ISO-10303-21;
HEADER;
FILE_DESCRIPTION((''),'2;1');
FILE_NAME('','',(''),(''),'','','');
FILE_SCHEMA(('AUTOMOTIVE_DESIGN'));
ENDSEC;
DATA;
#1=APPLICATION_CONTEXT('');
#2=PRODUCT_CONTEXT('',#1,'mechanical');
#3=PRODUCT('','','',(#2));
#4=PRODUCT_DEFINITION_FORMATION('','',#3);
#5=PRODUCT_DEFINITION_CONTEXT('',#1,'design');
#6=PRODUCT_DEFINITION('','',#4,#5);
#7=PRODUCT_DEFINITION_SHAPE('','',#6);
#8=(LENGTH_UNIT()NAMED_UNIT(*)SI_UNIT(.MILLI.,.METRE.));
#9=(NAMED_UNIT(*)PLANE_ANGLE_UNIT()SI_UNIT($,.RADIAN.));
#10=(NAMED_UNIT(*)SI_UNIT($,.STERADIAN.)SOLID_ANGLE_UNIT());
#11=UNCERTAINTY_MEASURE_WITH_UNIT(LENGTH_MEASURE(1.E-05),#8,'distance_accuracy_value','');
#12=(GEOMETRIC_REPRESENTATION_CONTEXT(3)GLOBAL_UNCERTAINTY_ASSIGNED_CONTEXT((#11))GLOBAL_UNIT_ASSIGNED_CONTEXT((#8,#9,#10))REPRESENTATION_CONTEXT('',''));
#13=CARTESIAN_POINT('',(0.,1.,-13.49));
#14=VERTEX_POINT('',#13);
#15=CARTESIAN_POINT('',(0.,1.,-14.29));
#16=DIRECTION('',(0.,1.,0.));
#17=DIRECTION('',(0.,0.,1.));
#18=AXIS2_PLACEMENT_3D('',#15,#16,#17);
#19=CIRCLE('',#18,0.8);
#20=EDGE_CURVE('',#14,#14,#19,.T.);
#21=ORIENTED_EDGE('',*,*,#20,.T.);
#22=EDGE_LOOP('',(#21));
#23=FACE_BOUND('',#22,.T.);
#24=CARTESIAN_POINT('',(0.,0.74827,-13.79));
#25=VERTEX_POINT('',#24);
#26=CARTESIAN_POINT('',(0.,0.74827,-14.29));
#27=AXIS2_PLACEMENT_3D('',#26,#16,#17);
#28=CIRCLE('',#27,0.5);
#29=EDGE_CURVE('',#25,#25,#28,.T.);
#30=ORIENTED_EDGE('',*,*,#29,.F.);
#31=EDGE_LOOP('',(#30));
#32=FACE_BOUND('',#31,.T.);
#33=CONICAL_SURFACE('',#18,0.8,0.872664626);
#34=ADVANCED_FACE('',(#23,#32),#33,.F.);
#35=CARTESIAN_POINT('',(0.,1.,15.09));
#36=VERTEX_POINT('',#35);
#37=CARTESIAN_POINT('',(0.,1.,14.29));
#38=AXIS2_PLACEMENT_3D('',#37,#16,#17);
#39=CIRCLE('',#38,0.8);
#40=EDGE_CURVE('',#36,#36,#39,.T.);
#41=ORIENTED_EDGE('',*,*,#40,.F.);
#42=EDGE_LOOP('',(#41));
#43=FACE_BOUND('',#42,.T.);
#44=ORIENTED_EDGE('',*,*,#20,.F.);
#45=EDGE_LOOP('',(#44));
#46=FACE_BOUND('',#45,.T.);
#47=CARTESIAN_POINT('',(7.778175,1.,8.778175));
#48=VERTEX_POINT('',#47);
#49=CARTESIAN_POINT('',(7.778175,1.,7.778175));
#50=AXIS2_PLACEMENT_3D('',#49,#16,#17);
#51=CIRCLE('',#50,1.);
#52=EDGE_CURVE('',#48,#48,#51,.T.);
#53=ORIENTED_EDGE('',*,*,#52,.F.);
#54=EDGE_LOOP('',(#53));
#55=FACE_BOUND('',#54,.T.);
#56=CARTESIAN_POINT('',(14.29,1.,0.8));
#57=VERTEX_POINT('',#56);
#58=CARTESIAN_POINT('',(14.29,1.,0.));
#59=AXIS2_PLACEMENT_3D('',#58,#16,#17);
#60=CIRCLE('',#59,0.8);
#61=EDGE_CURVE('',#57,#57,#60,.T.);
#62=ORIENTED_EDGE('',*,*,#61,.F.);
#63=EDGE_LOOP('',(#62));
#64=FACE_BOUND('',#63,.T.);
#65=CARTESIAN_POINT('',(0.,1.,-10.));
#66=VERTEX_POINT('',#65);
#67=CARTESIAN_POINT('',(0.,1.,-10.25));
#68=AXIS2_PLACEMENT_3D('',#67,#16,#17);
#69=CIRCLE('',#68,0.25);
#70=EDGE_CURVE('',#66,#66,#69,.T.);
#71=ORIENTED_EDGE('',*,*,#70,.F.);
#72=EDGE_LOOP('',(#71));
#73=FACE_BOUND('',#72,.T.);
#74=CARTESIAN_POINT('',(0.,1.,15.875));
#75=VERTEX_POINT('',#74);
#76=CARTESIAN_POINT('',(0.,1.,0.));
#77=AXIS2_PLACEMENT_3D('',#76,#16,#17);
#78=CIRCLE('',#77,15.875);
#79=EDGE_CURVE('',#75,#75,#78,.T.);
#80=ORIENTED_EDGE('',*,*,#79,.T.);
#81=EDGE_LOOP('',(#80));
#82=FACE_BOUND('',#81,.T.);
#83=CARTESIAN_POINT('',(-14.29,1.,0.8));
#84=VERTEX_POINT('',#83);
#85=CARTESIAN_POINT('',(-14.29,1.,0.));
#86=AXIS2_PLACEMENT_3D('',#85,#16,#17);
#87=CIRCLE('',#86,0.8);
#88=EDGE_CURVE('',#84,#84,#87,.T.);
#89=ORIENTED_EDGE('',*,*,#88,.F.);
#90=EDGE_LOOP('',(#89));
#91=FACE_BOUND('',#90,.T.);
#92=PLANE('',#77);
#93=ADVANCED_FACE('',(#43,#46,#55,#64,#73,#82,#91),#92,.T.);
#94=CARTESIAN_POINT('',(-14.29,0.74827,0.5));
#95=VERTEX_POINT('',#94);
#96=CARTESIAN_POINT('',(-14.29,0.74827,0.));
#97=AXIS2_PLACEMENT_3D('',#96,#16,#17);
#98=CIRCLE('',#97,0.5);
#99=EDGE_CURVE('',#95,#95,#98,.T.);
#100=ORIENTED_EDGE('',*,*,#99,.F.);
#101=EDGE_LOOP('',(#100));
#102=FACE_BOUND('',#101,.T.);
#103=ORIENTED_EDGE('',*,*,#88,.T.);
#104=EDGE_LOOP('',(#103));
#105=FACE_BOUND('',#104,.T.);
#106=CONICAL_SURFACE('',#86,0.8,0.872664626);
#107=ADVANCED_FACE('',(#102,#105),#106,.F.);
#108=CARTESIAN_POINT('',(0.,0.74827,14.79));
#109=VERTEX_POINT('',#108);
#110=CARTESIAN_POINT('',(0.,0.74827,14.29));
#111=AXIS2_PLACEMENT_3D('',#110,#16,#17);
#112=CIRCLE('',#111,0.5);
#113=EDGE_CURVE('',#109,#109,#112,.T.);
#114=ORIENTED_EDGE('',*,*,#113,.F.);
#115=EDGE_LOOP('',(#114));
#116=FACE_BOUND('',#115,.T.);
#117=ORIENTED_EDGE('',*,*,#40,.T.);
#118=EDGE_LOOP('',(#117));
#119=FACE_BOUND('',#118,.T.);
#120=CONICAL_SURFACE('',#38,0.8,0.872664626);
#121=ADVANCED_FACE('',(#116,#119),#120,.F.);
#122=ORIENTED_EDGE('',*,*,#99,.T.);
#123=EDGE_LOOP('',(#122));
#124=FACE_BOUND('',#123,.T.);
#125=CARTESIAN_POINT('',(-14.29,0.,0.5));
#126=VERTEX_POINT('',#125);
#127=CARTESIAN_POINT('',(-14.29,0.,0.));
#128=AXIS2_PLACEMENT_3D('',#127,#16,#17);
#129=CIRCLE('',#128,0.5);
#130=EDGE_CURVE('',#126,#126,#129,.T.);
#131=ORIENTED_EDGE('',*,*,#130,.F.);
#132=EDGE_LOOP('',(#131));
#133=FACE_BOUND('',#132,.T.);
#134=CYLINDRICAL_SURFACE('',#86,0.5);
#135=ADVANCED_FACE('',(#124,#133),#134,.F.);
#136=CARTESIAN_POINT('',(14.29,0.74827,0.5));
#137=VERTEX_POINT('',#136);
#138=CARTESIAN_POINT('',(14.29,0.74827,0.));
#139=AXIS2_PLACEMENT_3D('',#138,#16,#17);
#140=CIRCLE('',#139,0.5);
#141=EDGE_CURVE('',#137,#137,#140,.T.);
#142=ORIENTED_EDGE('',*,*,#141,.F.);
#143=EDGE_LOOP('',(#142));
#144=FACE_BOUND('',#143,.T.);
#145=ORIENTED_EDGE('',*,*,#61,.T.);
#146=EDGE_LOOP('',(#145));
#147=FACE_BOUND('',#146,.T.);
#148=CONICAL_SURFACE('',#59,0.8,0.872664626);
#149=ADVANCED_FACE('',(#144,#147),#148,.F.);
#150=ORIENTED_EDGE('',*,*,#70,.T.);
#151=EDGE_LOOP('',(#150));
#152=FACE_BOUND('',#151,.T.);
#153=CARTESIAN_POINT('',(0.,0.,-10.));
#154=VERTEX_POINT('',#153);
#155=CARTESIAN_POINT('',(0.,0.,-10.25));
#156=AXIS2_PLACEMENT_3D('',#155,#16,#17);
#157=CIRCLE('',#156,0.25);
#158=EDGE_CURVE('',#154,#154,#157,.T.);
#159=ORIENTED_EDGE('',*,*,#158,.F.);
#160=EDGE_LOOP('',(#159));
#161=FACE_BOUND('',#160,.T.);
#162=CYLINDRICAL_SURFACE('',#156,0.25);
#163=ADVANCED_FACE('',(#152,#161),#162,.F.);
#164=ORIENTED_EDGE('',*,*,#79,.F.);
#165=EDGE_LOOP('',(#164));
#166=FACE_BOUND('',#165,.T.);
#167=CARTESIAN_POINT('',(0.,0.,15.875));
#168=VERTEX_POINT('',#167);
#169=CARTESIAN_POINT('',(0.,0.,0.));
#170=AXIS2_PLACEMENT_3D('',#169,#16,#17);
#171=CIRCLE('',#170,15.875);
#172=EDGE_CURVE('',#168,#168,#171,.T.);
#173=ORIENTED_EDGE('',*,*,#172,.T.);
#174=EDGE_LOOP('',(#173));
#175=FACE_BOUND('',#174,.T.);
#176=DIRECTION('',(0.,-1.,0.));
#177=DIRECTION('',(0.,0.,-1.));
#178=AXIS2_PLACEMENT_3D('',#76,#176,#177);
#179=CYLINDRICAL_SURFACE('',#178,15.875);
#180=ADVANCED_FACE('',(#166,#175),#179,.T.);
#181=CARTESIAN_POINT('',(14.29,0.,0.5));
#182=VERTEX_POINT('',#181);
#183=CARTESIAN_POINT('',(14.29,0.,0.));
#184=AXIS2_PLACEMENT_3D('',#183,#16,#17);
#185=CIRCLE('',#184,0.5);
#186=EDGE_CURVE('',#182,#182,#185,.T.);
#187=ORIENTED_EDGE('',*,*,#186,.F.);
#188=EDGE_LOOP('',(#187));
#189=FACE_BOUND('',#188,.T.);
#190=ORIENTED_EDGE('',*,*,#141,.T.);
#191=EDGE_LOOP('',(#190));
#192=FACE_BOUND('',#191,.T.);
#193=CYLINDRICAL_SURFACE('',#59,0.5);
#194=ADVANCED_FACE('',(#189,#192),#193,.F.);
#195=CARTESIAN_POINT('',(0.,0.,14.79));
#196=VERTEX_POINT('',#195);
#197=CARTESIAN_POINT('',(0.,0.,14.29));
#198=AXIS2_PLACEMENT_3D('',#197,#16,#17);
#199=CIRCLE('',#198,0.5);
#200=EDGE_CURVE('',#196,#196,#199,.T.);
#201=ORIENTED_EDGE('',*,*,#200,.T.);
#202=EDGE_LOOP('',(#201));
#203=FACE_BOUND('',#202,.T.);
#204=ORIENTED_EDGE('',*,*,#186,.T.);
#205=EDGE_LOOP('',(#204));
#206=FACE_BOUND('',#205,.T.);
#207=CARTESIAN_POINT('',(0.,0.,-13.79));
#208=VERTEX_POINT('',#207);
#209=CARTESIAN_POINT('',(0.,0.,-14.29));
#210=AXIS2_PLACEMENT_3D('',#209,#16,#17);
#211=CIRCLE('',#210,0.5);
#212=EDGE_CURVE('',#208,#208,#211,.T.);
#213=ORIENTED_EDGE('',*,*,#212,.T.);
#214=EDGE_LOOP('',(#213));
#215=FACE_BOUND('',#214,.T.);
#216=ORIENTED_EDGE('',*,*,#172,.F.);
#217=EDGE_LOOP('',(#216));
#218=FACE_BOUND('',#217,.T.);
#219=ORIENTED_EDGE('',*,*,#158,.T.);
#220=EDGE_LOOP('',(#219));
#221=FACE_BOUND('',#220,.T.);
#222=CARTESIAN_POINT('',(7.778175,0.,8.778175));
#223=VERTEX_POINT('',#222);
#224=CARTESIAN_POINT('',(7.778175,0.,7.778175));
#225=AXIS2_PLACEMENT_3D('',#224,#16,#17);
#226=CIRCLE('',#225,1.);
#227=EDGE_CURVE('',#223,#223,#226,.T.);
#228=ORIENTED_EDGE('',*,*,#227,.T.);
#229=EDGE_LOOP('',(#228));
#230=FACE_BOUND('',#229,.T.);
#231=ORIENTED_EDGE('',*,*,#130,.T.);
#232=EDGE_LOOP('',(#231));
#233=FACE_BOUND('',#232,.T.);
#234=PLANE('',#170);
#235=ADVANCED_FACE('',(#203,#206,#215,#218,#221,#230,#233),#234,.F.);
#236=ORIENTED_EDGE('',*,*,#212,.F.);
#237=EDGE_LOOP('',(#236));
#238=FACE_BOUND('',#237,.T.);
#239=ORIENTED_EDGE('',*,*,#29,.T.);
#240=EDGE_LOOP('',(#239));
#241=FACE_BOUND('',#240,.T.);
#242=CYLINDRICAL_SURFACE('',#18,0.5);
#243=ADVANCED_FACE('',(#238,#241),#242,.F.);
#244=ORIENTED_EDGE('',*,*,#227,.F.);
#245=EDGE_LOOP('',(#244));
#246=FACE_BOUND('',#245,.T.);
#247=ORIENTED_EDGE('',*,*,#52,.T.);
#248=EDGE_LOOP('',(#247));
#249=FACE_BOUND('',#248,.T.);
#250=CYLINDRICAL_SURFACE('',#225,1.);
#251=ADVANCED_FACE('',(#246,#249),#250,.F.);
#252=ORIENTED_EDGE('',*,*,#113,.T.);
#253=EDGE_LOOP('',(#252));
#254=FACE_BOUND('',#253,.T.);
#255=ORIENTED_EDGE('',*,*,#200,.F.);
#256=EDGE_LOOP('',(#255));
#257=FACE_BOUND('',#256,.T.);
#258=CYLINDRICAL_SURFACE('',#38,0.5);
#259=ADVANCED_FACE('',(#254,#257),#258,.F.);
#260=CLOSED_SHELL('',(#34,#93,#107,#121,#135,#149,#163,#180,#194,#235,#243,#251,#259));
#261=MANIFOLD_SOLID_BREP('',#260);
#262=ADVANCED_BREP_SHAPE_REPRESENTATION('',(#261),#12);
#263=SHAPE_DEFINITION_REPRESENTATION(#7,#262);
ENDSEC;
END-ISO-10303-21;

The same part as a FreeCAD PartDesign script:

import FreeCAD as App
import Part
import Sketcher
from FreeCAD import Vector

doc = App.newDocument("Part")
body = doc.addObject("PartDesign::Body", "Body")

sketch1 = body.newObject("Sketcher::SketchObject", "Sketch")
sketch1.AttachmentSupport = (doc.getObject("XZ_Plane"), [""])
sketch1.MapMode = "FlatFace"
sketch1.addGeometry(Part.Circle(Vector(0, 0, 0), Vector(0, 0, 1), 15.875), False)
sketch1.addConstraint([
    Sketcher.Constraint("Coincident", 0, 3, -1, 1),
    Sketcher.Constraint("Diameter", 0, 31.75),
])
pad1 = body.newObject("PartDesign::Pad", "Pad")
pad1.Profile = sketch1
pad1.Length = 1
pad1.Reversed = True

sketch2 = body.newObject("Sketcher::SketchObject", "Sketch001")
sketch2.AttachmentSupport = (doc.getObject("XZ_Plane"), [""])
sketch2.MapMode = "FlatFace"
sketch2.AttachmentOffset = App.Placement(Vector(0, 0, -1), App.Rotation())
sketch2.addGeometry([
    Part.Circle(Vector(0, -10.25, 0), Vector(0, 0, 1), 0.25),
    Part.Circle(Vector(7.778175, 7.778175, 0), Vector(0, 0, 1), 1),
], False)
sketch2.addConstraint([
    Sketcher.Constraint("PointOnObject", 0, 3, -2),
    Sketcher.Constraint("Diameter", 1, 2.0),
    Sketcher.Constraint("Diameter", 0, 0.5),
    Sketcher.Constraint("DistanceY", 0, 3, -1, 1, 10.25),
    Sketcher.Constraint("DistanceX", -1, 1, 1, 3, 7.778175),
    Sketcher.Constraint("DistanceY", -1, 1, 1, 3, 7.778175),
])
pocket1 = body.newObject("PartDesign::Pocket", "Pocket")
pocket1.Profile = sketch2
pocket1.Type = "ThroughAll"
pocket1.Midplane = True

sketch3 = body.newObject("Sketcher::SketchObject", "Sketch002")
sketch3.AttachmentSupport = (doc.getObject("XZ_Plane"), [""])
sketch3.MapMode = "FlatFace"
sketch3.AttachmentOffset = App.Placement(Vector(0, 0, -1), App.Rotation())
sketch3.addGeometry([
    Part.Circle(Vector(0, -14.29, 0), Vector(0, 0, 1), 0.5),
    Part.Circle(Vector(-14.29, 0, 0), Vector(0, 0, 1), 0.5),
    Part.Circle(Vector(0, 14.29, 0), Vector(0, 0, 1), 0.5),
    Part.Circle(Vector(14.29, 0, 0), Vector(0, 0, 1), 0.5),
], False)
sketch3.addConstraint([
    Sketcher.Constraint("Equal", 0, 1),
    Sketcher.Constraint("Equal", 1, 2),
    Sketcher.Constraint("Equal", 2, 3),
    Sketcher.Constraint("Symmetric", 0, 3, 2, 3, -1, 1),
    Sketcher.Constraint("Symmetric", 1, 3, 3, 3, -1, 1),
    Sketcher.Constraint("PointOnObject", 0, 3, -2),
    Sketcher.Constraint("PointOnObject", 1, 3, -1),
    Sketcher.Constraint("Diameter", 0, 1.0),
    Sketcher.Constraint("DistanceY", 0, 3, -1, 1, 14.29),
    Sketcher.Constraint("DistanceX", 1, 3, -1, 1, 14.29),
])
doc.recompute()
hole = body.newObject("PartDesign::Hole", "Hole")
hole.Profile = sketch3
hole.ThreadType = "None"
hole.Diameter = 1
hole.DepthType = "ThroughAll"
hole.HoleCutType = "Countersink"
hole.HoleCutDiameter = 1.6
hole.HoleCutCountersinkAngle = 100
hole.Reversed = True

doc.recompute()
